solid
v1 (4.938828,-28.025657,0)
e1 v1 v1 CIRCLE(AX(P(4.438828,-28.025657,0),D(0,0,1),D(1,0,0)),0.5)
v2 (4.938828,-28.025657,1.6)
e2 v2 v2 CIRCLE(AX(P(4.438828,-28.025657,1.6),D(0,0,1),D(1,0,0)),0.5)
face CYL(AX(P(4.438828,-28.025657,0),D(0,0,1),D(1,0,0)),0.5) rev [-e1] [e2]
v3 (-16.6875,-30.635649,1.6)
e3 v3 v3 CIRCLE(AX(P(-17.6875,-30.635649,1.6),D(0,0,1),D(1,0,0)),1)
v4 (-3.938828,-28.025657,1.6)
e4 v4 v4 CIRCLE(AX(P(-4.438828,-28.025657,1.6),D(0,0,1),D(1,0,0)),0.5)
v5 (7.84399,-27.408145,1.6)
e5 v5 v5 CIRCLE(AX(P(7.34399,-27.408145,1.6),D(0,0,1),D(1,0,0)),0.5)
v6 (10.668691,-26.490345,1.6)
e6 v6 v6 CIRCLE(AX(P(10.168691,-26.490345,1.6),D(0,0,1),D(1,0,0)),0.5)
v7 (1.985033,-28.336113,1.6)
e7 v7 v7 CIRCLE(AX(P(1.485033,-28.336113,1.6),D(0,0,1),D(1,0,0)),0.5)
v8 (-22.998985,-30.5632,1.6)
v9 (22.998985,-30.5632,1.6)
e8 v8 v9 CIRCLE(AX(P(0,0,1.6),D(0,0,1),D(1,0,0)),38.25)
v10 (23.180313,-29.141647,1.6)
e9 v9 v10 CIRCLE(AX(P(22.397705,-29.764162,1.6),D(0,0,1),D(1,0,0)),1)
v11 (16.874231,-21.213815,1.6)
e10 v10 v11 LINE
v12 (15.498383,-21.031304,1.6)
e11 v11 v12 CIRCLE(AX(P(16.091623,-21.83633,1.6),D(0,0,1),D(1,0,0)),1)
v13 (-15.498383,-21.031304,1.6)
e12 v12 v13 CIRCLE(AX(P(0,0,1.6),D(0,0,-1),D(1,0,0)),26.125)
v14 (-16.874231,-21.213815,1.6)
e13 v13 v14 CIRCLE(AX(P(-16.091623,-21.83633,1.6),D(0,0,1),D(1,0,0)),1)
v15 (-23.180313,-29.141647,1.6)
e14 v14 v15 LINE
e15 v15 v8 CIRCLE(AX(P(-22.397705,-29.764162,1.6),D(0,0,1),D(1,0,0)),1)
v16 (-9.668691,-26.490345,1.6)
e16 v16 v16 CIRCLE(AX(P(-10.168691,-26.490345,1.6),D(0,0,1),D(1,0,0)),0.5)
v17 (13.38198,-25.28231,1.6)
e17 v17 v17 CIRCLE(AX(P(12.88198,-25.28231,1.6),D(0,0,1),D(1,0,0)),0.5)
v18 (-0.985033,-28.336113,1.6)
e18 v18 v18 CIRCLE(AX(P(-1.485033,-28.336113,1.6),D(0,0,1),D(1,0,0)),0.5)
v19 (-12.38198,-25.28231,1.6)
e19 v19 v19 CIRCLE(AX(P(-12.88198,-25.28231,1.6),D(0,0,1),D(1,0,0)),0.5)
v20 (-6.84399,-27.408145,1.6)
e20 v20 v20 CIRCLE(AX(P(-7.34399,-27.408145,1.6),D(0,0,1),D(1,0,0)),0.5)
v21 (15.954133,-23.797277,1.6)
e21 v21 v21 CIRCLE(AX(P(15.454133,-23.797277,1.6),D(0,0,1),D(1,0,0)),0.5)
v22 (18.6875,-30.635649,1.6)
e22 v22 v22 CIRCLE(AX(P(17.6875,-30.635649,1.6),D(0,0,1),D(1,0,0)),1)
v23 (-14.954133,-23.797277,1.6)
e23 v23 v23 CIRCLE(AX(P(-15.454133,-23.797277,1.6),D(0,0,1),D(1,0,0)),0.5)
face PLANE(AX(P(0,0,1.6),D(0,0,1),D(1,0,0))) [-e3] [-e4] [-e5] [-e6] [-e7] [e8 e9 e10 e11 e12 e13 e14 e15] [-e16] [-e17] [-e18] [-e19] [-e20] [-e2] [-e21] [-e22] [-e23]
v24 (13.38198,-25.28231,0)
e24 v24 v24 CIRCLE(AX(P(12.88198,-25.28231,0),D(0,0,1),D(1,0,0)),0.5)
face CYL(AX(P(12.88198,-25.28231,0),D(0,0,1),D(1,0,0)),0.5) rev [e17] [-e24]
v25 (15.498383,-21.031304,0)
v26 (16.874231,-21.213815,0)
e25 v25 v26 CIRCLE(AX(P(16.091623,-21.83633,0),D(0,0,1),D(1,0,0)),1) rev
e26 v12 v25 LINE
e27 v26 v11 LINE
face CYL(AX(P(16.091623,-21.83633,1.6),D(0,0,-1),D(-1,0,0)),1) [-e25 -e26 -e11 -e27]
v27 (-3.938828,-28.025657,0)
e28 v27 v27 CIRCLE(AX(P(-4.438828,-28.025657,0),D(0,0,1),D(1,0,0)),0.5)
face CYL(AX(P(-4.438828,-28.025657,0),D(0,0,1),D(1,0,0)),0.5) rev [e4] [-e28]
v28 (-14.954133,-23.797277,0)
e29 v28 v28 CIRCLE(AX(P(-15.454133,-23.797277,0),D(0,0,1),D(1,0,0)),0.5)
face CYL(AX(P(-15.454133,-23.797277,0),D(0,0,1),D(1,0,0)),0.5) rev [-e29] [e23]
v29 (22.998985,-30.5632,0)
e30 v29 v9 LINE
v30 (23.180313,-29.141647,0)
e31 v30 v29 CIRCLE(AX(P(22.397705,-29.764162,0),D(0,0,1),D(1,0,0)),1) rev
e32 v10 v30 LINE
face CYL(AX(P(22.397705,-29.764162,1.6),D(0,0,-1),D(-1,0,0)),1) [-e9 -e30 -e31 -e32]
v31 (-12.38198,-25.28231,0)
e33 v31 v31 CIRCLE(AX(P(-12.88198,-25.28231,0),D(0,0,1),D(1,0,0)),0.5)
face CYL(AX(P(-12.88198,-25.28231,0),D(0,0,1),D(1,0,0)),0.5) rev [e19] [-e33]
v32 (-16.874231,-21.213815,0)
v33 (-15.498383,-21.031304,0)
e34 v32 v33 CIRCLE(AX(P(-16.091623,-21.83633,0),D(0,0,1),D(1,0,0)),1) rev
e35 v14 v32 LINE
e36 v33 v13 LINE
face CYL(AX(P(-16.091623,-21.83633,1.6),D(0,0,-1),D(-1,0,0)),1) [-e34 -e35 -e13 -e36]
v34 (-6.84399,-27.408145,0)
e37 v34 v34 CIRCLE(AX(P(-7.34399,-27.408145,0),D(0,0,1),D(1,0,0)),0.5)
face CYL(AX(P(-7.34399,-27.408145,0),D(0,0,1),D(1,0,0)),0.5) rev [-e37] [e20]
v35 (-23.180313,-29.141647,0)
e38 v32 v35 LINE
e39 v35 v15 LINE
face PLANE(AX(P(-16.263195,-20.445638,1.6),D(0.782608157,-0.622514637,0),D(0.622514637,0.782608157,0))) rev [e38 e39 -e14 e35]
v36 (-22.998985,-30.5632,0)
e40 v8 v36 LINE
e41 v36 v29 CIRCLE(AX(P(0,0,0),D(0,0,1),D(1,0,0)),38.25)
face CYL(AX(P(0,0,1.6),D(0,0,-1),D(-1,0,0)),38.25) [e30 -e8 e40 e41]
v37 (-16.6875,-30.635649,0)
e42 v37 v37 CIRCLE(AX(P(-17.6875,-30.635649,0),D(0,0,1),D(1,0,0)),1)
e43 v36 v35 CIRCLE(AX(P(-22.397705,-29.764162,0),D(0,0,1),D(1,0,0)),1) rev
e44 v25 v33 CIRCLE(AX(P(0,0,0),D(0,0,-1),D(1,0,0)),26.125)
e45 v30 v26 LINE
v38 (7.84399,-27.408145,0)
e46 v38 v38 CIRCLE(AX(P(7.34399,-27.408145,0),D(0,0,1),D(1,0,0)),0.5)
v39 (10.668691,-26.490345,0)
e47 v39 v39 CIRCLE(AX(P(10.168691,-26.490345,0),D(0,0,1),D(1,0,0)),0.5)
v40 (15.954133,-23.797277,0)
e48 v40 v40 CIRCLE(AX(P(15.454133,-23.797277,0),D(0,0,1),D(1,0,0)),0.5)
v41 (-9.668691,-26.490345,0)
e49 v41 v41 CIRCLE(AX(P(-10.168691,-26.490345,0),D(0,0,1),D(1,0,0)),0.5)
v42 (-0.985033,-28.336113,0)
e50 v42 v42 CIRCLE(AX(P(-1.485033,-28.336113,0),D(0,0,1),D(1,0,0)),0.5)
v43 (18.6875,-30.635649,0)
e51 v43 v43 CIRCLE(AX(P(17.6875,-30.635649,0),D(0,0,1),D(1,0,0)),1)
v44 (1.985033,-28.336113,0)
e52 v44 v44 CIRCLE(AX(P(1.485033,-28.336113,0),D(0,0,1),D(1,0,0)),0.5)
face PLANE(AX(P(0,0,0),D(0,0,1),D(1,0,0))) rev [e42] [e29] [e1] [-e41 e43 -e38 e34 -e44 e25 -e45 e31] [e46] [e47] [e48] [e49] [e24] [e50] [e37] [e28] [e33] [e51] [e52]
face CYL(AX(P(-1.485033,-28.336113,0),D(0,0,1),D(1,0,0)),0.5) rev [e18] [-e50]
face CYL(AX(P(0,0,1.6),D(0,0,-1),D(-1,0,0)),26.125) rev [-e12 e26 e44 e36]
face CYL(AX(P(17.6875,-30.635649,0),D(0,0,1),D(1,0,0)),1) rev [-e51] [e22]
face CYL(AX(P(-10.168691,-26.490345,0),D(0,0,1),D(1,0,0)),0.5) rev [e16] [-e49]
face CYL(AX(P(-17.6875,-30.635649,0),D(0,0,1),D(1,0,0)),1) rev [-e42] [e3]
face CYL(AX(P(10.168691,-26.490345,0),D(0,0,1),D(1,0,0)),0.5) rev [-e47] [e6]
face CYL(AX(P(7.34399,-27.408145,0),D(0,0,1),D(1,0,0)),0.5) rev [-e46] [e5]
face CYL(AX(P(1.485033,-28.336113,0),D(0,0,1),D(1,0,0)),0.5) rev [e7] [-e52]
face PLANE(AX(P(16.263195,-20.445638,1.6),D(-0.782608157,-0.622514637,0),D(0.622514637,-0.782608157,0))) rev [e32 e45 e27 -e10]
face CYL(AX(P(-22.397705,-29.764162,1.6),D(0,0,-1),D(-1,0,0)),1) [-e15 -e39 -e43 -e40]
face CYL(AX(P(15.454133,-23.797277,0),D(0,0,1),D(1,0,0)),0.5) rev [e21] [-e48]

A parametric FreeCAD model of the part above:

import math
import FreeCAD as App
import Part
import Sketcher

V = App.Vector
Q = App.Units.Quantity


def edges_at(feature, points):
    """Names of the edges that pass closest to the given points."""
    edges = feature.Shape.Edges
    near = lambda p: min(range(len(edges)), key=lambda i: edges[i].distToShape(Part.Vertex(*p))[0])
    return sorted({f"Edge{near(p) + 1}" for p in points})

doc = App.newDocument("Part")
params = doc.addObject("Spreadsheet::Sheet", "Params")
for row, (alias, value) in enumerate([
    ("sketch1_radius", "38.25 mm"),
    ("pad1_length", "1.6 mm"),
    ("sketch2_diameter", "1 mm"),
    ("sketch3_diameter", "2 mm"),
    ("pocket2_length", "1.6 mm"),
    ("fillet_radius", "1 mm"),
], start=1):
    params.set(f"A{row}", alias)
    params.set(f"B{row}", "=" + value)
    params.setAlias(f"B{row}", alias)

body = doc.addObject("PartDesign::Body", "Body")

sketch1 = body.newObject("Sketcher::SketchObject", "Sketch")
sketch1.AttachmentSupport = (doc.getObject("XY_Plane"), [""])
sketch1.MapMode = "FlatFace"
sketch1.addGeometry([
    Part.LineSegment(V(-16, -20, 0), V(-24, -30, 0)),
    Part.ArcOfCircle(Part.Circle(V(0, 0, 0), V(0, 0, 1), 38), math.radians(-128), math.radians(-52)),
    Part.LineSegment(V(24, -30, 0), V(16, -20, 0)),
    Part.ArcOfCircle(Part.Circle(V(0, 0, 0), V(0, 0, 1), 26), math.radians(-128), math.radians(-52)),
], False)
sketch1.addConstraint([
    Sketcher.Constraint("Coincident", 0, 2, 1, 1),
    Sketcher.Constraint("Coincident", 1, 2, 2, 1),
    Sketcher.Constraint("Coincident", 2, 2, 3, 2),
    Sketcher.Constraint("Coincident", 3, 1, 0, 1),
    Sketcher.Constraint("Coincident", 1, 3, -1, 1),
    Sketcher.Constraint("Coincident", 3, 3, -1, 1),
    Sketcher.Constraint("Horizontal", 0, 2, 1, 2),
    Sketcher.Constraint("Horizontal", 2, 2, 3, 1),
    Sketcher.Constraint("Radius", 1, 38.25),
    Sketcher.Constraint("Angle", 0, Q("-128.5 deg")),
    Sketcher.Constraint("Radius", 3, 26.125),
    Sketcher.Constraint("DistanceY", 0, 2, -1, 1, 29.934762),
])
sketch1.setExpression("Constraints[8]", "Params.sketch1_radius")
pad1 = body.newObject("PartDesign::Pad", "Pad")
pad1.Profile = sketch1
pad1.setExpression("Length", "Params.pad1_length")

sketch2 = body.newObject("Sketcher::SketchObject", "Sketch001")
sketch2.AttachmentSupport = (doc.getObject("XY_Plane"), [""])
sketch2.MapMode = "FlatFace"
sketch2.AttachmentOffset = App.Placement(V(0, 0, 1.6), App.Rotation())
sketch2.addGeometry([
    Part.Circle(V(-15.5, -23.8, 0), V(0, 0, 1), 0.5),
    Part.Circle(V(-12.9, -25.3, 0), V(0, 0, 1), 0.5),
    Part.Circle(V(-10.2, -26.5, 0), V(0, 0, 1), 0.5),
    Part.Circle(V(-7.3, -27.4, 0), V(0, 0, 1), 0.5),
    Part.Circle(V(-4.4, -28, 0), V(0, 0, 1), 0.5),
    Part.Circle(V(-1.5, -28.3, 0), V(0, 0, 1), 0.5),
    Part.Circle(V(1.5, -28.3, 0), V(0, 0, 1), 0.5),
    Part.Circle(V(4.4, -28, 0), V(0, 0, 1), 0.5),
    Part.Circle(V(7.3, -27.4, 0), V(0, 0, 1), 0.5),
    Part.Circle(V(10.2, -26.5, 0), V(0, 0, 1), 0.5),
    Part.Circle(V(12.9, -25.3, 0), V(0, 0, 1), 0.5),
    Part.Circle(V(15.5, -23.8, 0), V(0, 0, 1), 0.5),
], False)
sketch2.addConstraint([
    Sketcher.Constraint("Equal", 0, 1),
    Sketcher.Constraint("Equal", 1, 2),
    Sketcher.Constraint("Equal", 2, 3),
    Sketcher.Constraint("Equal", 3, 4),
    Sketcher.Constraint("Equal", 4, 5),
    Sketcher.Constraint("Equal", 5, 6),
    Sketcher.Constraint("Equal", 6, 7),
    Sketcher.Constraint("Equal", 7, 8),
    Sketcher.Constraint("Equal", 8, 9),
    Sketcher.Constraint("Equal", 9, 10),
    Sketcher.Constraint("Equal", 10, 11),
    Sketcher.Constraint("Symmetric", 5, 3, 6, 3, -2),
    Sketcher.Constraint("Symmetric", 4, 3, 7, 3, -2),
    Sketcher.Constraint("Symmetric", 3, 3, 8, 3, -2),
    Sketcher.Constraint("Symmetric", 2, 3, 9, 3, -2),
    Sketcher.Constraint("Symmetric", 1, 3, 10, 3, -2),
    Sketcher.Constraint("Symmetric", 0, 3, 11, 3, -2),
    Sketcher.Constraint("Diameter", 0, 1.0),
    Sketcher.Constraint("DistanceX", 2, 3, 3, 3, 2.8247),
    Sketcher.Constraint("DistanceY", 3, 3, 2, 3, 0.917801),
    Sketcher.Constraint("DistanceX", 0, 3, 5, 3, 13.9691),
    Sketcher.Constraint("DistanceX", 1, 3, -1, 1, 12.88198),
    Sketcher.Constraint("DistanceY", 1, 3, -1, 1, 25.28231),
    Sketcher.Constraint("DistanceX", 2, 3, -1, 1, 10.168691),
    Sketcher.Constraint("DistanceY", 4, 3, 3, 3, 0.617511),
    Sketcher.Constraint("DistanceY", 4, 3, 0, 3, 4.228379),
    Sketcher.Constraint("DistanceY", 5, 3, 2, 3, 1.845768),
    Sketcher.Constraint("DistanceX", 4, 3, 6, 3, 5.923861),
    Sketcher.Constraint("DistanceX", 3, 3, 7, 3, 11.782818),
    Sketcher.Constraint("DistanceY", 0, 3, -1, 1, 23.797277),
])
sketch2.setExpression("Constraints[17]", "Params.sketch2_diameter")
pocket1 = body.newObject("PartDesign::Pocket", "Pocket")
pocket1.Profile = sketch2
pocket1.Type = "ThroughAll"

sketch3 = body.newObject("Sketcher::SketchObject", "Sketch002")
sketch3.AttachmentSupport = (doc.getObject("XY_Plane"), [""])
sketch3.MapMode = "FlatFace"
sketch3.AttachmentOffset = App.Placement(V(0, 0, 1.6), App.Rotation())
sketch3.addGeometry([
    Part.Circle(V(-17.7, -30.6, 0), V(0, 0, 1), 1),
    Part.Circle(V(17.7, -30.6, 0), V(0, 0, 1), 1),
], False)
sketch3.addConstraint([
    Sketcher.Constraint("Equal", 0, 1),
    Sketcher.Constraint("Symmetric", 0, 3, 1, 3, -2),
    Sketcher.Constraint("Diameter", 0, 2.0),
    Sketcher.Constraint("DistanceX", 0, 3, 1, 3, 35.375),
    Sketcher.Constraint("DistanceY", 0, 3, -1, 1, 30.635649),
])
sketch3.setExpression("Constraints[2]", "Params.sketch3_diameter")
pocket2 = body.newObject("PartDesign::Pocket", "Pocket001")
pocket2.Profile = sketch3
pocket2.setExpression("Length", "Params.pocket2_length")
doc.recompute()

fillet = body.newObject("PartDesign::Fillet", "Fillet")
fillet.Base = (pocket2, edges_at(pocket2, [
    (16.263, -20.446, 0.8),
    (23.811, -29.935, 0.8),
    (-23.811, -29.935, 0.8),
    (-16.263, -20.446, 0.8),
]))
fillet.setExpression("Radius", "Params.fillet_radius")

doc.recompute()
